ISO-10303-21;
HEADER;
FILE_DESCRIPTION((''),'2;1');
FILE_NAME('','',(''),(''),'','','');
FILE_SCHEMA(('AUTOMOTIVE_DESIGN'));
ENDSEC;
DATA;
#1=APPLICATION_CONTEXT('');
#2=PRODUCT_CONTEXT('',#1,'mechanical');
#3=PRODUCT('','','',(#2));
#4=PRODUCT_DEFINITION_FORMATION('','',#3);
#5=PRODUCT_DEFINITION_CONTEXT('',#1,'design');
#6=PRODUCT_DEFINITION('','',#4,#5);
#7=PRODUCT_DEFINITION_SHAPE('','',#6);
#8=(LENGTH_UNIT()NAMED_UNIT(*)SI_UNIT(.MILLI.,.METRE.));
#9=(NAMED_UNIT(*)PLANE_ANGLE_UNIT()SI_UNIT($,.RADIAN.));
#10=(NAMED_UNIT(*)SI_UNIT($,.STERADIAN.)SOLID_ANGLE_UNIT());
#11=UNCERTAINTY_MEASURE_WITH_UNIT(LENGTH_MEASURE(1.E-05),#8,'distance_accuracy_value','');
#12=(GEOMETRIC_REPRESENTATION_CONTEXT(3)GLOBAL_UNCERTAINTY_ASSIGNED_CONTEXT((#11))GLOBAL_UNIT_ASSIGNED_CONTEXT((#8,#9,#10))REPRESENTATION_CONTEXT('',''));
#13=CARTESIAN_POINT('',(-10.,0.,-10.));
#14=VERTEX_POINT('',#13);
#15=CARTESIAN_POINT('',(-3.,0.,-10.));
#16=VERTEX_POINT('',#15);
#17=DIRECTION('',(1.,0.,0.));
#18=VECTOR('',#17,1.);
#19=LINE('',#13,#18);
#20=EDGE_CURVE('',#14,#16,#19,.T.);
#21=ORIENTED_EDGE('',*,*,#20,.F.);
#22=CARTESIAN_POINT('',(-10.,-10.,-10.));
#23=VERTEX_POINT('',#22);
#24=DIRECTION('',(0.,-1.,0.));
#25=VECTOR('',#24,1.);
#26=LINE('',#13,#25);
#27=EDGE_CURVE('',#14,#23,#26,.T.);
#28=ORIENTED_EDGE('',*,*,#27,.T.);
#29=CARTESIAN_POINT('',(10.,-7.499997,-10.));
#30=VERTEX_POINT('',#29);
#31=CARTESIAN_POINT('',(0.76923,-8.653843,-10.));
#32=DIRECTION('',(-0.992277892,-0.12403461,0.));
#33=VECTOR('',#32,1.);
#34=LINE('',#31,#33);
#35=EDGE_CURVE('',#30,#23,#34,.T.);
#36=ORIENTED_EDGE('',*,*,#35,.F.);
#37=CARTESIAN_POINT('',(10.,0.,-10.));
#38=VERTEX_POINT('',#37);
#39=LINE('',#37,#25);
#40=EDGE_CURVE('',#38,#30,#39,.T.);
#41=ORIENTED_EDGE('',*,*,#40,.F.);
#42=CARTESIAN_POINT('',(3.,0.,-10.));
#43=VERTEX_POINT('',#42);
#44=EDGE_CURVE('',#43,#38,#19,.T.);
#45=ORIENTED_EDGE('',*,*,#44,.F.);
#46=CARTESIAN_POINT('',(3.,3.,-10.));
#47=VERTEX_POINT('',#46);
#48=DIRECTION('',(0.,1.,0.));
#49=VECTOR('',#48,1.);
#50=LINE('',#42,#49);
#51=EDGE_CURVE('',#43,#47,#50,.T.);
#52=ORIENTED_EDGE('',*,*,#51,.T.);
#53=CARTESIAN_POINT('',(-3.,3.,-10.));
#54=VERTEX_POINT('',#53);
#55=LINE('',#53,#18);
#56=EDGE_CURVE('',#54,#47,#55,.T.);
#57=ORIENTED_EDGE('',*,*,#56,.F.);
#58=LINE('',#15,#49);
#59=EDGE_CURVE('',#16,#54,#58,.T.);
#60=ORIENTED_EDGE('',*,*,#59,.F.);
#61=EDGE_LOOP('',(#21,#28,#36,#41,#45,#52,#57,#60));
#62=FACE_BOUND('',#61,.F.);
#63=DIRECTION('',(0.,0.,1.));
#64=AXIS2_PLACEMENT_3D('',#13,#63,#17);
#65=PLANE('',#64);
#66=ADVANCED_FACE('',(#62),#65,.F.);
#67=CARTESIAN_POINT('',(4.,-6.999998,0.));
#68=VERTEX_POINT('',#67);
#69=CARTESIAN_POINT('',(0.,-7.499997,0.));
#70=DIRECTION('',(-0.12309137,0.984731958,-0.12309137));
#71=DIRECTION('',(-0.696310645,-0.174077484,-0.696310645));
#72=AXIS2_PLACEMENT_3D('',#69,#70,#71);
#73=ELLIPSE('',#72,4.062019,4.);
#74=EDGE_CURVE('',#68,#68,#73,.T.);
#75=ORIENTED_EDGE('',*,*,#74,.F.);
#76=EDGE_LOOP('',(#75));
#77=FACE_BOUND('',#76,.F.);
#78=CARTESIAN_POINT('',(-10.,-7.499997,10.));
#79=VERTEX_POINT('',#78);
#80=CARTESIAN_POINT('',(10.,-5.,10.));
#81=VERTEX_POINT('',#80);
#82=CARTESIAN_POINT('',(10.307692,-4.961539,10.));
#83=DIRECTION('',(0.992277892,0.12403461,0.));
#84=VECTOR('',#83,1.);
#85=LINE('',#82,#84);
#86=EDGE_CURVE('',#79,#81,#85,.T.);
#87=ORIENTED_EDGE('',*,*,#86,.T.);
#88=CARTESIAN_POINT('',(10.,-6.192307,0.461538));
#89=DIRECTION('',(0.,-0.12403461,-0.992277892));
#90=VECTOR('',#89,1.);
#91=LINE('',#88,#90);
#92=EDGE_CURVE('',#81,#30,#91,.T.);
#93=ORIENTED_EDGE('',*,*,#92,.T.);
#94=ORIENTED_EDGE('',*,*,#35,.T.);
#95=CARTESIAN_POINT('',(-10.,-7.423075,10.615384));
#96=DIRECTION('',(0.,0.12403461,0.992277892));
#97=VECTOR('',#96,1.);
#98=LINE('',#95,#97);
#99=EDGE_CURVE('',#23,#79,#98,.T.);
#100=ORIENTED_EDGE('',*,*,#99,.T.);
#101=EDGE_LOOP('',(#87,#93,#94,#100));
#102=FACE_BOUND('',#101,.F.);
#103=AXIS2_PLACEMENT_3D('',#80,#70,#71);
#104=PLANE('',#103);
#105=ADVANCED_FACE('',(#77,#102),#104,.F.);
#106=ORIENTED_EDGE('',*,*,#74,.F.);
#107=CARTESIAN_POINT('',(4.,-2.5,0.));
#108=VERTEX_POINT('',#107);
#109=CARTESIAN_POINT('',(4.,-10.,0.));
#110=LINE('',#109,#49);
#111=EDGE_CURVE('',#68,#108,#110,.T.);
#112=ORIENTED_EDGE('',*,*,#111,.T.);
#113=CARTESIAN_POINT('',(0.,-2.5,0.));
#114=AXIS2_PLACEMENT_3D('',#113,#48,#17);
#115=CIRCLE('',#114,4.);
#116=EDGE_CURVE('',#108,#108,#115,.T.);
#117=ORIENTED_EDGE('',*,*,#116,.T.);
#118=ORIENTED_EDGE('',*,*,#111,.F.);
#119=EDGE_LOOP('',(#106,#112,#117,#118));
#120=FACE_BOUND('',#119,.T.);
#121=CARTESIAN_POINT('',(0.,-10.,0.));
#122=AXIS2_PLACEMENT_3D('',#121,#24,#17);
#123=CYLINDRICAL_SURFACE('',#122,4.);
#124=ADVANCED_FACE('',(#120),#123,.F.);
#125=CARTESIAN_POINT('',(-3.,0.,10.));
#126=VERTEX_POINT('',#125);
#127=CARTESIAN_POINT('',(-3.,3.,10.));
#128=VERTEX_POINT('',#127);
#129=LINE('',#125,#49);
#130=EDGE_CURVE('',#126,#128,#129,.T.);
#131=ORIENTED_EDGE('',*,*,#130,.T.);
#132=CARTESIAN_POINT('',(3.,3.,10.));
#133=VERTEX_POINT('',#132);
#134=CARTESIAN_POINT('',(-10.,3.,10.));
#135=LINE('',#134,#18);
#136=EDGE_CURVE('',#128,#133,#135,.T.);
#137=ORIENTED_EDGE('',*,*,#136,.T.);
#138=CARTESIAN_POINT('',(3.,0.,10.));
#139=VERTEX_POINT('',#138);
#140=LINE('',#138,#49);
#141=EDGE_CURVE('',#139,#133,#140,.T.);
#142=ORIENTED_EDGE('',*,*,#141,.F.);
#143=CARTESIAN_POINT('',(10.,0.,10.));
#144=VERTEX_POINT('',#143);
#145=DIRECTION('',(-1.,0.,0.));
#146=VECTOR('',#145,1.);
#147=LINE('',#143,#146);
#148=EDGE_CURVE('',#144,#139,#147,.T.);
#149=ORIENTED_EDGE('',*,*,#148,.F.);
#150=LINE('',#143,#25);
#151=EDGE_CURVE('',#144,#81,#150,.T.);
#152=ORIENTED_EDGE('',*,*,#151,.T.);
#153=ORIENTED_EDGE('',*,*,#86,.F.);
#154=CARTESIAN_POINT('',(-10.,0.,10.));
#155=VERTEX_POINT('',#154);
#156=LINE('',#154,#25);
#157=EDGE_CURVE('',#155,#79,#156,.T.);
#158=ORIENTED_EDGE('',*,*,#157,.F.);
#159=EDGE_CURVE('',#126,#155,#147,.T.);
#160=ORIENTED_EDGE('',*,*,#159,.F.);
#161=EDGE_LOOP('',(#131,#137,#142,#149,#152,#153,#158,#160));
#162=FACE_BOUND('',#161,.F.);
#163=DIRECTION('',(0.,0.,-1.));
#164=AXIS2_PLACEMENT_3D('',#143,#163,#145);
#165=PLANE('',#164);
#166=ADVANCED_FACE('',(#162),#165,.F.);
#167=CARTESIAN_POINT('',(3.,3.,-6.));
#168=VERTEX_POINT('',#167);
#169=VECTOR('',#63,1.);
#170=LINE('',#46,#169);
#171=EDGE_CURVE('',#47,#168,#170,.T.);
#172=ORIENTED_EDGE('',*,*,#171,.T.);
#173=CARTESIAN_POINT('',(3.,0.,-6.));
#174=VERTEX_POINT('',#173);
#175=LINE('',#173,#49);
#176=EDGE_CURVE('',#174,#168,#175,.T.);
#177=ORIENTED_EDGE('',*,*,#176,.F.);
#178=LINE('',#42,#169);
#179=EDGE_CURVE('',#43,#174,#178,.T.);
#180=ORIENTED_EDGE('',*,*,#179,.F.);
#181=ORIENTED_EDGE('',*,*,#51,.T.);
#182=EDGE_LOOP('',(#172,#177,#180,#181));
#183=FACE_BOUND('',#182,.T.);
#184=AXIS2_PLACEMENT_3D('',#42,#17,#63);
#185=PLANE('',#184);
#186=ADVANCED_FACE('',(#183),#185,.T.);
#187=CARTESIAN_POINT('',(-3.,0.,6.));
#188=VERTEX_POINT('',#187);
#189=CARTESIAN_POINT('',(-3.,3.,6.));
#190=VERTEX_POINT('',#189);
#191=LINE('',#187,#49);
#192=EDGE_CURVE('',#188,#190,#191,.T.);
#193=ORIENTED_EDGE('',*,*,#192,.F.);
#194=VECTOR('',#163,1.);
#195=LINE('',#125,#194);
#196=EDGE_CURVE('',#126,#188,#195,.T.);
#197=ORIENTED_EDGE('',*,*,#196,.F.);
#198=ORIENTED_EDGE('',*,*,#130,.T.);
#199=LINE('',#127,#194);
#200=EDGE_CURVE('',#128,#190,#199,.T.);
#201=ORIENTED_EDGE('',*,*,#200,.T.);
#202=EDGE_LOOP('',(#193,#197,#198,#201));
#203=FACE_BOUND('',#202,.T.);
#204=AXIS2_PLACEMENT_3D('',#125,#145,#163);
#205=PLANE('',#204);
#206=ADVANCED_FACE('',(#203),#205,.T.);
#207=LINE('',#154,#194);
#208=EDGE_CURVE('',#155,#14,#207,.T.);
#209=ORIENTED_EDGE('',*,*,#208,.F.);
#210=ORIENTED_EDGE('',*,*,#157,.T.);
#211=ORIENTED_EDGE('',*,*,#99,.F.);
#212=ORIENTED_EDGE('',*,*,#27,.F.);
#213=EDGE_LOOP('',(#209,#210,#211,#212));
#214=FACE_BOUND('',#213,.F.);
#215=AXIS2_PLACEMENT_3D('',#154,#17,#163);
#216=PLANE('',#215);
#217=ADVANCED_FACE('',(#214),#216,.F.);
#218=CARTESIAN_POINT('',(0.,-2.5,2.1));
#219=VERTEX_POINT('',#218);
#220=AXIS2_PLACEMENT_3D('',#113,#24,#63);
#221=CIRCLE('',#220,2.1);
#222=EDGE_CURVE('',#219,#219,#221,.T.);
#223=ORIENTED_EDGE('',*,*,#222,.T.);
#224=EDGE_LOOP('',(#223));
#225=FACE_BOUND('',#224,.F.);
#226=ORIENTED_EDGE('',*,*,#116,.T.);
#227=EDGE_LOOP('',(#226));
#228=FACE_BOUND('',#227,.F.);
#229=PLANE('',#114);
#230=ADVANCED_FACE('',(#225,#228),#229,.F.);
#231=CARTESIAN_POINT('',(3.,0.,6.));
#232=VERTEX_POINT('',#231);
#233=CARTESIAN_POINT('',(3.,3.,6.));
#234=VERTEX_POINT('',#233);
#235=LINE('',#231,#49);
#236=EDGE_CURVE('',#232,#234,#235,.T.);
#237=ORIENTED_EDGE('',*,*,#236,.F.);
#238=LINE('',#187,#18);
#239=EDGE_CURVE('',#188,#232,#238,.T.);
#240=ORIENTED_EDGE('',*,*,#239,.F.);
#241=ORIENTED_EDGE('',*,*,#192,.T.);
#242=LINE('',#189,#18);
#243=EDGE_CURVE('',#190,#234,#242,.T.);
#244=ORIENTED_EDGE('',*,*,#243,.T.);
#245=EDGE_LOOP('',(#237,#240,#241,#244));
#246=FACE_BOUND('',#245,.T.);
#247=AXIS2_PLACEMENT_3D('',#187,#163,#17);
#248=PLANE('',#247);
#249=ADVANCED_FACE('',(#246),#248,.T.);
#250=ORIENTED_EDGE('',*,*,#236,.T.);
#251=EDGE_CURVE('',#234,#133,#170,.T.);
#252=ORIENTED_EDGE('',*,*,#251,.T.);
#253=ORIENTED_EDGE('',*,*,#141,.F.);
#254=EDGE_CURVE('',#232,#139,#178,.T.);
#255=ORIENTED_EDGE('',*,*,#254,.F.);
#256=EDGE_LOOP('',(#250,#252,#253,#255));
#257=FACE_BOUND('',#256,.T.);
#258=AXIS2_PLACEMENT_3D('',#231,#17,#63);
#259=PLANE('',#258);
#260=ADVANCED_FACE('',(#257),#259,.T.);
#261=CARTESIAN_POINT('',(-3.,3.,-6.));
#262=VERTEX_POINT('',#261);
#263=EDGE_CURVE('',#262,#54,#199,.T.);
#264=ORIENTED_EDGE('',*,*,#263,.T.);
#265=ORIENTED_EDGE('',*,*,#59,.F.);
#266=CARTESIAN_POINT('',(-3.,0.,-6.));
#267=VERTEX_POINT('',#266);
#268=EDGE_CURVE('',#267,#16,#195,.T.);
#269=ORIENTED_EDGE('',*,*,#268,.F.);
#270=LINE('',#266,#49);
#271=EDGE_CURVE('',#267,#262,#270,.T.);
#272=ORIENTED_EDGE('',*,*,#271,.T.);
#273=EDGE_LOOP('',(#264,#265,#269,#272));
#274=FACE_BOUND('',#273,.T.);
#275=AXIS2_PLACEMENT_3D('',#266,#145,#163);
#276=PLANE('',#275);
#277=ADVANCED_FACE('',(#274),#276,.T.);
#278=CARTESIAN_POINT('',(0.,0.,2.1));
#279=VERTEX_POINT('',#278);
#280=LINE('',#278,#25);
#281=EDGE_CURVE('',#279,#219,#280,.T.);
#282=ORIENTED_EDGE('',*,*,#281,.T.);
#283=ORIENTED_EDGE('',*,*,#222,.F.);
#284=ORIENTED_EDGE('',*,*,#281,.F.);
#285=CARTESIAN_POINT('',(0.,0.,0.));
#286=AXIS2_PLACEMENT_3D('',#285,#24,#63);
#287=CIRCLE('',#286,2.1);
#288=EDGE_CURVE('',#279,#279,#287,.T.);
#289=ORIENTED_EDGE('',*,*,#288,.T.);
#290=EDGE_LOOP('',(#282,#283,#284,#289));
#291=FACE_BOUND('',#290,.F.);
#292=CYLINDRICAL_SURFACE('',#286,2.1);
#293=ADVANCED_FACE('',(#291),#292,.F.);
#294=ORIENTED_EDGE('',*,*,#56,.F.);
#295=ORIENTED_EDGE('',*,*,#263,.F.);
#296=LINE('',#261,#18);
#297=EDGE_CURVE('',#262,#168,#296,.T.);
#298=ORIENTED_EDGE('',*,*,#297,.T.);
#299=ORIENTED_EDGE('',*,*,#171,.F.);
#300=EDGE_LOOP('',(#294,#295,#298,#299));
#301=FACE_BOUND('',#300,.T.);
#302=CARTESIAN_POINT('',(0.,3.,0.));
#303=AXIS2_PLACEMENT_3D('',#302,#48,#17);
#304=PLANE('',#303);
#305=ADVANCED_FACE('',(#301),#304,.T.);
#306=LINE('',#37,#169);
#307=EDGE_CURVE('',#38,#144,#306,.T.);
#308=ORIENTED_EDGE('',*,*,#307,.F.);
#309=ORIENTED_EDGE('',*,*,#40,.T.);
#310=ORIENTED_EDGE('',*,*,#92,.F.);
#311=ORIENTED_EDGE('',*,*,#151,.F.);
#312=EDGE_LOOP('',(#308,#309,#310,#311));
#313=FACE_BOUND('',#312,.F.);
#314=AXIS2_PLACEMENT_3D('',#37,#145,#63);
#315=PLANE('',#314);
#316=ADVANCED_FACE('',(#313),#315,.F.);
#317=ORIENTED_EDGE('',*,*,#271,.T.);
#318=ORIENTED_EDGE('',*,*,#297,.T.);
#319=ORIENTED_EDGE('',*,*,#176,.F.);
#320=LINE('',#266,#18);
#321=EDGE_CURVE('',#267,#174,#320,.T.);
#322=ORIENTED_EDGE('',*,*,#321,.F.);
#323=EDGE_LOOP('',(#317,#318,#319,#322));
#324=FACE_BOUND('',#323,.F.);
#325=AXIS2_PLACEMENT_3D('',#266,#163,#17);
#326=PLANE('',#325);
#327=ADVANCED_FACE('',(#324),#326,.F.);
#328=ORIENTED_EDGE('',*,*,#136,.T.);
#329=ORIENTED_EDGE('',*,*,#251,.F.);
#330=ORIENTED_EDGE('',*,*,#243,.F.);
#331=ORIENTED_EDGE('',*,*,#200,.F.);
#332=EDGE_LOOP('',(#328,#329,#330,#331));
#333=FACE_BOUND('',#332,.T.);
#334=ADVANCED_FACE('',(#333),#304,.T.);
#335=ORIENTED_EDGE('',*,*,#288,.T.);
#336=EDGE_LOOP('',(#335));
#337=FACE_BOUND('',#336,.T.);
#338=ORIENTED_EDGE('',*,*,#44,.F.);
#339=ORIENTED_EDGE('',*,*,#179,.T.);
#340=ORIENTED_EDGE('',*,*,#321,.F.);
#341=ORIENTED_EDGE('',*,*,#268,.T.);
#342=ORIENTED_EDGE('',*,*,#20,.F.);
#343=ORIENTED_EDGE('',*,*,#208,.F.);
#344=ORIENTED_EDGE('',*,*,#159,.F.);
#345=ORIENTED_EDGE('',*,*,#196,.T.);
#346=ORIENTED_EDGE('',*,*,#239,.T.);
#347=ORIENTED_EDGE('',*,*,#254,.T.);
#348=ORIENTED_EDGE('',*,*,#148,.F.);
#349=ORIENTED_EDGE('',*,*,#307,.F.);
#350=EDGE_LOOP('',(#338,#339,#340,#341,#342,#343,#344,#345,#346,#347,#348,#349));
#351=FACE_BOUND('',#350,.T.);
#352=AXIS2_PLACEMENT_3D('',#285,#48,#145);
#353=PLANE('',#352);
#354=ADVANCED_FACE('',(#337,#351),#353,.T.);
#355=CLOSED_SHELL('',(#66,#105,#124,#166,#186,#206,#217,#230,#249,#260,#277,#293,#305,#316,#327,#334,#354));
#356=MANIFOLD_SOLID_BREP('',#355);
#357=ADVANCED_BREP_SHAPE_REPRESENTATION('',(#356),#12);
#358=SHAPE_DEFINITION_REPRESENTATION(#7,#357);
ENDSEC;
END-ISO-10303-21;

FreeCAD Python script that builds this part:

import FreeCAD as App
import Part
import Sketcher
Q = App.Units.Quantity


def add_polygon(sketch, points):
    """Adds a closed chain of lines whose ends are joined by coincident constraints."""
    first, n = sketch.GeometryCount, len(points)
    for a, b in zip(points, points[1:] + points[:1]):
        sketch.addGeometry(Part.LineSegment(App.Vector(*a, 0), App.Vector(*b, 0)), False)
    for i in range(n):
        sketch.addConstraint(Sketcher.Constraint("Coincident", first + i, 2, first + (i + 1) % n, 1))

doc = App.newDocument("Part")
params = doc.addObject("Spreadsheet::Sheet", "Params")
for row, (alias, value) in enumerate([
    ("sketch1_width", "20 mm"),
    ("pad1_length", "10 mm"),
    ("sketch2_width", "5 mm"),
    ("sketch3_diameter", "4.2 mm"),
    ("hole_diameter", "4.2 mm"),
    ("sketch4_diameter", "8 mm"),
    ("pocket2_length", "7.5 mm"),
    ("sketch5_width", "6 mm"),
    ("sketch5_height", "4 mm"),
    ("pad2_length", "3 mm"),
], start=1):
    params.set(f"A{row}", alias)
    params.set(f"B{row}", "=" + value)
    params.setAlias(f"B{row}", alias)

body = doc.addObject("PartDesign::Body", "Body")

# Sketch on XZ plane
sketch1 = doc.addObject("Sketcher::SketchObject", "Sketch")
body.addObject(sketch1)
sketch1.AttachmentSupport = (doc.XZ_Plane, [""])
sketch1.MapMode = "FlatFace"
add_polygon(sketch1, [(10, -10), (-10, -10), (-10, 10), (10, 10)])  # lines 0-3
sketch1.addConstraint(Sketcher.Constraint("Horizontal", 0))
sketch1.addConstraint(Sketcher.Constraint("Vertical", 1))
sketch1.addConstraint(Sketcher.Constraint("Horizontal", 2))
sketch1.addConstraint(Sketcher.Constraint("Vertical", 3))
sketch1.addConstraint(Sketcher.Constraint("Symmetric", 0, 2, 2, 2, -1, 1))
sketch1.addConstraint(Sketcher.Constraint("Equal", 2, 1))
sketch1.addConstraint(Sketcher.Constraint("DistanceX", 0, 2, 0, 1, Q("20 mm")))
sketch1.setExpression("Constraints[10]", "Params.sketch1_width")
pad1 = doc.addObject("PartDesign::Pad", "Pad")
body.addObject(pad1)
pad1.Profile = sketch1
pad1.setExpression("Length", "Params.pad1_length")

# Sketch on an angled plane
sketch2 = doc.addObject("Sketcher::SketchObject", "Sketch001")
body.addObject(sketch2)
sketch2.Placement = App.Placement(App.Vector(10, 0, 10), App.Rotation(App.Vector(0, -1, 0), App.Vector(-0.707106781, 0, -0.707106781), App.Vector(0.707106781, 0, -0.707106781), "ZXY"))
add_polygon(sketch2, [(10, 28), (5, 0), (10, 0)])  # lines 0-2
sketch2.addConstraint(Sketcher.Constraint("Horizontal", 1))
sketch2.addConstraint(Sketcher.Constraint("Vertical", 2))
sketch2.addConstraint(Sketcher.Constraint("PointOnObject", 0, 2, -1))
sketch2.addConstraint(Sketcher.Constraint("DistanceX", 1, 1, 1, 2, Q("5 mm")))
sketch2.addConstraint(Sketcher.Constraint("DistanceX", -1, 1, 0, 2, Q("5 mm")))
sketch2.addConstraint(Sketcher.Constraint("DistanceY", 2, 1, 2, 2, Q("28.2843 mm")))
sketch2.setExpression("Constraints[6]", "Params.sketch2_width")
pocket1 = doc.addObject("PartDesign::Pocket", "Pocket")
body.addObject(pocket1)
pocket1.Profile = sketch2
pocket1.Type = "ThroughAll"
pocket1.Midplane = True

# Sketch on XZ plane
sketch3 = doc.addObject("Sketcher::SketchObject", "Sketch002")
body.addObject(sketch3)
sketch3.AttachmentSupport = (doc.XZ_Plane, [""])
sketch3.MapMode = "FlatFace"
sketch3.addGeometry(Part.Circle(App.Vector(0, 0, 0), App.Vector(0, 0, 1), 2.1), False)
sketch3.addConstraint(Sketcher.Constraint("Coincident", 0, 3, -1, 1))
sketch3.addConstraint(Sketcher.Constraint("Diameter", 0, Q("4.2 mm")))
sketch3.setExpression("Constraints[1]", "Params.sketch3_diameter")
doc.recompute()
hole = doc.addObject("PartDesign::Hole", "Hole")
body.addObject(hole)
hole.Profile = sketch3
hole.ThreadType = "None"
hole.setExpression("Diameter", "Params.hole_diameter")
hole.DepthType = "ThroughAll"
hole.Reversed = True

# Sketch on XZ plane
sketch4 = doc.addObject("Sketcher::SketchObject", "Sketch003")
body.addObject(sketch4)
sketch4.AttachmentSupport = (doc.XZ_Plane, [""])
sketch4.MapMode = "FlatFace"
sketch4.AttachmentOffset = App.Placement(App.Vector(0, 0, 10), App.Rotation())
sketch4.addGeometry(Part.Circle(App.Vector(0, 0, 0), App.Vector(0, 0, 1), 4), False)
sketch4.addConstraint(Sketcher.Constraint("Coincident", 0, 3, -1, 1))
sketch4.addConstraint(Sketcher.Constraint("Diameter", 0, Q("8 mm")))
sketch4.setExpression("Constraints[1]", "Params.sketch4_diameter")
pocket2 = doc.addObject("PartDesign::Pocket", "Pocket001")
body.addObject(pocket2)
pocket2.Profile = sketch4
pocket2.setExpression("Length", "Params.pocket2_length")

# Sketch on XZ plane
sketch5 = doc.addObject("Sketcher::SketchObject", "Sketch004")
body.addObject(sketch5)
sketch5.AttachmentSupport = (doc.XZ_Plane, [""])
sketch5.MapMode = "FlatFace"
add_polygon(sketch5, [(-3, 6), (-3, 10), (3, 10), (3, 6)])  # lines 0-3
add_polygon(sketch5, [(-3, -10), (-3, -6), (3, -6), (3, -10)])  # lines 4-7
sketch5.addConstraint(Sketcher.Constraint("Vertical", 0))
sketch5.addConstraint(Sketcher.Constraint("Horizontal", 1))
sketch5.addConstraint(Sketcher.Constraint("Vertical", 2))
sketch5.addConstraint(Sketcher.Constraint("Horizontal", 3))
sketch5.addConstraint(Sketcher.Constraint("Vertical", 4))
sketch5.addConstraint(Sketcher.Constraint("Horizontal", 5))
sketch5.addConstraint(Sketcher.Constraint("Vertical", 6))
sketch5.addConstraint(Sketcher.Constraint("Horizontal", 7))
sketch5.addConstraint(Sketcher.Constraint("Symmetric", 2, 2, 4, 2, -1, 1))
sketch5.addConstraint(Sketcher.Constraint("Symmetric", 0, 2, 6, 2, -1, 1))
sketch5.addConstraint(Sketcher.Constraint("Vertical", 3, 2, 4, 2))
sketch5.addConstraint(Sketcher.Constraint("DistanceX", 1, 1, 1, 2, Q("6 mm")))
sketch5.addConstraint(Sketcher.Constraint("DistanceY", 0, 1, 0, 2, Q("4 mm")))
sketch5.addConstraint(Sketcher.Constraint("DistanceY", -1, 1, 0, 2, Q("10 mm")))
sketch5.setExpression("Constraints[19]", "Params.sketch5_width")
sketch5.setExpression("Constraints[20]", "Params.sketch5_height")
pad2 = doc.addObject("PartDesign::Pad", "Pad001")
body.addObject(pad2)
pad2.Profile = sketch5
pad2.setExpression("Length", "Params.pad2_length")
pad2.Reversed = True

doc.recompute()
